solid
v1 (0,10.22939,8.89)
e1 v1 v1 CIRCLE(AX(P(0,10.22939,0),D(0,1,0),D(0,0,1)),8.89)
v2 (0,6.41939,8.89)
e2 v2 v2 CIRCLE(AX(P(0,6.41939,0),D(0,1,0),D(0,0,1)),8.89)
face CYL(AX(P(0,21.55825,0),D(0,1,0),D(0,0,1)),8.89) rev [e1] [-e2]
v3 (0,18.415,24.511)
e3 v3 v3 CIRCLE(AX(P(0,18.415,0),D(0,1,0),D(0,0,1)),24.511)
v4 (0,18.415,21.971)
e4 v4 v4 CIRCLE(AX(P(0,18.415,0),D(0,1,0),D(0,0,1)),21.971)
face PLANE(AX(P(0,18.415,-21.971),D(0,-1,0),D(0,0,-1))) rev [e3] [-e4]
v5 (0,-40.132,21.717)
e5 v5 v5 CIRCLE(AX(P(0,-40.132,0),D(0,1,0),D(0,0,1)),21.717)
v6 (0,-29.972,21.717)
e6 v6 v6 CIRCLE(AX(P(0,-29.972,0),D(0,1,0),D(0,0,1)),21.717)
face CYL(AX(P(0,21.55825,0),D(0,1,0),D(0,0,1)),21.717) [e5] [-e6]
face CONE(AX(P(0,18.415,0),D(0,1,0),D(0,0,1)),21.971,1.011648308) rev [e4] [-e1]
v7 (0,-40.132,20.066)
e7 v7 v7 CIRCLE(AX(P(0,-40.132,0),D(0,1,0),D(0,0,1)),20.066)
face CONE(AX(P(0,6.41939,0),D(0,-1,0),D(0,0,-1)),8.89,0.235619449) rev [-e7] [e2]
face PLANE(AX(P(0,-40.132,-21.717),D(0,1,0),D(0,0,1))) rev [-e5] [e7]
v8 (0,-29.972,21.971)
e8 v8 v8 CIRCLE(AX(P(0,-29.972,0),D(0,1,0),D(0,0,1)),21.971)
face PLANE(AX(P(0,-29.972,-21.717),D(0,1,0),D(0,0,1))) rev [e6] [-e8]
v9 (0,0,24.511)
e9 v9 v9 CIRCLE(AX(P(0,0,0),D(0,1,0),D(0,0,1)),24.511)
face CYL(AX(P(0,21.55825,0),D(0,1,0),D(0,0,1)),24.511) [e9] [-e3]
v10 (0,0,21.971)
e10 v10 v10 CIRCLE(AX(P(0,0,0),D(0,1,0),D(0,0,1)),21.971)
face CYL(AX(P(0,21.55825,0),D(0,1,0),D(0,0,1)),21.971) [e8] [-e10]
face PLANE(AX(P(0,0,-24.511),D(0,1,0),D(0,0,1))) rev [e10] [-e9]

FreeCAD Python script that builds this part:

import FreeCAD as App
import Part
import Sketcher
Q = App.Units.Quantity

doc = App.newDocument("Part")
params = doc.addObject("Spreadsheet::Sheet", "Params")
for row, (alias, value) in enumerate([
    ("sketch1_width", "0.4 in"),
    ("sketch1_height", "0.1 in"),
    ("sketch1_width2", "0.15 in"),
    ("sketch1_width3", "1.18 in"),
    ("sketch1_height2", "0.01 in"),
    ("revolution_angle", "360 deg"),
], start=1):
    params.set(f"A{row}", alias)
    params.set(f"B{row}", "=" + value)
    params.setAlias(f"B{row}", alias)

body = doc.addObject("PartDesign::Body", "Body")

sketch1 = body.newObject("Sketcher::SketchObject", "Sketch")
sketch1.AttachmentSupport = (doc.getObject("YZ_Plane"), [""])
sketch1.MapMode = "FlatFace"
sketch1.addGeometry([
    Part.LineSegment(App.Vector(0, -24.51, 0), App.Vector(18.41, -24.51, 0)),
    Part.LineSegment(App.Vector(18.41, -24.51, 0), App.Vector(18.41, -21.97, 0)),
    Part.LineSegment(App.Vector(18.41, -21.97, 0), App.Vector(10.23, -8.89, 0)),
    Part.LineSegment(App.Vector(10.23, -8.89, 0), App.Vector(6.42, -8.89, 0)),
    Part.LineSegment(App.Vector(6.42, -8.89, 0), App.Vector(-40.13, -20.07, 0)),
    Part.LineSegment(App.Vector(-40.13, -20.07, 0), App.Vector(-40.13, -21.72, 0)),
    Part.LineSegment(App.Vector(-40.13, -21.72, 0), App.Vector(-29.97, -21.72, 0)),
    Part.LineSegment(App.Vector(-29.97, -21.72, 0), App.Vector(-29.97, -21.97, 0)),
    Part.LineSegment(App.Vector(-29.97, -21.97, 0), App.Vector(0, -21.97, 0)),
    Part.LineSegment(App.Vector(0, -21.97, 0), App.Vector(0, -24.51, 0)),
], False)
sketch1.addConstraint([
    Sketcher.Constraint("Coincident", 0, 2, 1, 1),
    Sketcher.Constraint("Coincident", 1, 2, 2, 1),
    Sketcher.Constraint("Coincident", 2, 2, 3, 1),
    Sketcher.Constraint("Coincident", 3, 2, 4, 1),
    Sketcher.Constraint("Coincident", 4, 2, 5, 1),
    Sketcher.Constraint("Coincident", 5, 2, 6, 1),
    Sketcher.Constraint("Coincident", 6, 2, 7, 1),
    Sketcher.Constraint("Coincident", 7, 2, 8, 1),
    Sketcher.Constraint("Coincident", 8, 2, 9, 1),
    Sketcher.Constraint("Coincident", 9, 2, 0, 1),
    Sketcher.Constraint("Horizontal", 0),
    Sketcher.Constraint("Vertical", 1),
    Sketcher.Constraint("Horizontal", 3),
    Sketcher.Constraint("Vertical", 5),
    Sketcher.Constraint("Horizontal", 6),
    Sketcher.Constraint("Vertical", 7),
    Sketcher.Constraint("Horizontal", 8),
    Sketcher.Constraint("Vertical", 9),
    Sketcher.Constraint("PointOnObject", 8, 2, -2),
    Sketcher.Constraint("Horizontal", 1, 2, 7, 2),
    Sketcher.Constraint("DistanceX", 6, 1, 6, 2, Q("0.4 in")),
    Sketcher.Constraint("DistanceY", 1, 1, 1, 2, Q("0.1 in")),
    Sketcher.Constraint("DistanceX", 3, 2, 3, 1, Q("0.15 in")),
    Sketcher.Constraint("DistanceX", 8, 1, 8, 2, Q("1.18 in")),
    Sketcher.Constraint("DistanceY", 7, 2, 7, 1, Q("0.01 in")),
    Sketcher.Constraint("Angle", 4, Q("-166.5 deg")),
    Sketcher.Constraint("DistanceX", 0, 1, 0, 2, Q("0.725 in")),
    Sketcher.Constraint("DistanceY", 5, 2, 5, 1, Q("0.065 in")),
    Sketcher.Constraint("DistanceY", 2, 2, -1, 1, Q("0.35 in")),
    Sketcher.Constraint("DistanceY", 4, 2, -1, 1, Q("0.79 in")),
])
sketch1.setExpression("Constraints[20]", "Params.sketch1_width")
sketch1.setExpression("Constraints[21]", "Params.sketch1_height")
sketch1.setExpression("Constraints[22]", "Params.sketch1_width2")
sketch1.setExpression("Constraints[23]", "Params.sketch1_width3")
sketch1.setExpression("Constraints[24]", "Params.sketch1_height2")
revolution = body.newObject("PartDesign::Revolution", "Revolution")
revolution.Profile = sketch1
revolution.ReferenceAxis = (sketch1, ["H_Axis"])
revolution.setExpression("Angle", "Params.revolution_angle")

doc.recompute()
